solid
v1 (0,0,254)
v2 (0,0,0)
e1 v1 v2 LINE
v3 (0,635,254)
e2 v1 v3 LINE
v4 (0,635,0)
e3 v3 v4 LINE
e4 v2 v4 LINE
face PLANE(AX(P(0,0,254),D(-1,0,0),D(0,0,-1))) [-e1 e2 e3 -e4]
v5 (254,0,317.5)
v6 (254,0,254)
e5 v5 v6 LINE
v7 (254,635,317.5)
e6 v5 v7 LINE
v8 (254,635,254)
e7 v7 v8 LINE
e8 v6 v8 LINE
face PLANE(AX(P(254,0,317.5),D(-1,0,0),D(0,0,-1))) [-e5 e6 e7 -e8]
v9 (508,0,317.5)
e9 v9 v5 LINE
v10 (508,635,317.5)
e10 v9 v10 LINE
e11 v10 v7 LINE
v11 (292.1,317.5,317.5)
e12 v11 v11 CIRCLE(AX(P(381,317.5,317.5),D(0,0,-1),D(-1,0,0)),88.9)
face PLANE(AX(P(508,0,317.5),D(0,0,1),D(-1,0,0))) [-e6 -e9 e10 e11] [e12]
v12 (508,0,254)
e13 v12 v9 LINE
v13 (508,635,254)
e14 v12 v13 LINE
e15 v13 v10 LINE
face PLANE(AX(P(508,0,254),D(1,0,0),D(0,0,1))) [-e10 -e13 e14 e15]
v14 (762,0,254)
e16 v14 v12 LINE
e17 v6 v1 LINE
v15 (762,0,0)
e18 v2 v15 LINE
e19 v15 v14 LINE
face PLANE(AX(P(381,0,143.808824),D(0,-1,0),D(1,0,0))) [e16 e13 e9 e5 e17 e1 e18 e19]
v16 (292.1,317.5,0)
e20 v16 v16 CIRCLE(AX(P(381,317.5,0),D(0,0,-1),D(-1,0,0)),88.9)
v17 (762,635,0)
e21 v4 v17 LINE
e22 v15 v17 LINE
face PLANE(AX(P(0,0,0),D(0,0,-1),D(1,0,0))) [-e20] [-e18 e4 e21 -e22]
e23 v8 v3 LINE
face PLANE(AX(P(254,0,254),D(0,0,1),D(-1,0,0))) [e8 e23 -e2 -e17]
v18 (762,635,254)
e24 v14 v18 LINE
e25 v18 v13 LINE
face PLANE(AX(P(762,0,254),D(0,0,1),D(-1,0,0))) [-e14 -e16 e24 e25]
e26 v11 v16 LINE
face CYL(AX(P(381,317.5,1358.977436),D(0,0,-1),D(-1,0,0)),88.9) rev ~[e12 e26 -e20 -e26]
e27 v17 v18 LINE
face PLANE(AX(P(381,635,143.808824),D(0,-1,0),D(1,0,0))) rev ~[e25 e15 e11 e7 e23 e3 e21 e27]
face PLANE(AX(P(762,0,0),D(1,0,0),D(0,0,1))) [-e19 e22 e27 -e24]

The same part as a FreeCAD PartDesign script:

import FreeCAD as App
import Part
import Sketcher
Q = App.Units.Quantity


def add_polygon(sketch, points):
    """Adds a closed chain of lines whose ends are joined by coincident constraints."""
    first, n = sketch.GeometryCount, len(points)
    for a, b in zip(points, points[1:] + points[:1]):
        sketch.addGeometry(Part.LineSegment(App.Vector(*a, 0), App.Vector(*b, 0)), False)
    for i in range(n):
        sketch.addConstraint(Sketcher.Constraint("Coincident", first + i, 2, first + (i + 1) % n, 1))

doc = App.newDocument("Part")
body = doc.addObject("PartDesign::Body", "Body")

sketch1 = doc.addObject("Sketcher::SketchObject", "Sketch")
body.addObject(sketch1)
sketch1.AttachmentSupport = (doc.XZ_Plane, [""])
sketch1.MapMode = "FlatFace"
add_polygon(sketch1, [(0, 254), (0, 0), (762, 0), (762, 254), (508, 254), (508, 318), (254, 318), (254, 254)])
sketch1.addConstraint([
    Sketcher.Constraint("Vertical", 0),
    Sketcher.Constraint("Horizontal", 1),
    Sketcher.Constraint("Vertical", 2),
    Sketcher.Constraint("Horizontal", 3),
    Sketcher.Constraint("Vertical", 4),
    Sketcher.Constraint("Horizontal", 5),
    Sketcher.Constraint("Vertical", 6),
    Sketcher.Constraint("Horizontal", 7),
    Sketcher.Constraint("Coincident", 0, 2, -1, 1),
    Sketcher.Constraint("Horizontal", 3, 2, 6, 2),
    Sketcher.Constraint("Equal", 3, 5),
    Sketcher.Constraint("Equal", 5, 7),
    Sketcher.Constraint("Equal", 7, 0),
    Sketcher.Constraint("DistanceX", 1, 1, 1, 2, Q("30 in")),
    Sketcher.Constraint("DistanceY", 4, 1, 4, 2, Q("2.5 in")),
])
pad1 = doc.addObject("PartDesign::Pad", "Pad")
body.addObject(pad1)
pad1.Profile = sketch1
pad1.Length = Q("25 in")
pad1.Reversed = True

sketch2 = doc.addObject("Sketcher::SketchObject", "Sketch001")
body.addObject(sketch2)
sketch2.AttachmentSupport = (doc.XY_Plane, [""])
sketch2.MapMode = "FlatFace"
sketch2.AttachmentOffset = App.Placement(App.Vector(0, 0, 12.5 * 25.4), App.Rotation())
sketch2.addGeometry(Part.Circle(App.Vector(381, 318, 0), App.Vector(0, 0, 1), 89), False)
sketch2.addConstraint([
    Sketcher.Constraint("Diameter", 0, Q("7 in")),
    Sketcher.Constraint("DistanceX", -1, 1, 0, 3, Q("15 in")),
    Sketcher.Constraint("DistanceY", -1, 1, 0, 3, Q("12.5 in")),
])
doc.recompute()
hole = doc.addObject("PartDesign::Hole", "Hole")
body.addObject(hole)
hole.Profile = sketch2
hole.ThreadType = "None"
hole.Diameter = Q("7 in")
hole.DepthType = "ThroughAll"

doc.recompute()
